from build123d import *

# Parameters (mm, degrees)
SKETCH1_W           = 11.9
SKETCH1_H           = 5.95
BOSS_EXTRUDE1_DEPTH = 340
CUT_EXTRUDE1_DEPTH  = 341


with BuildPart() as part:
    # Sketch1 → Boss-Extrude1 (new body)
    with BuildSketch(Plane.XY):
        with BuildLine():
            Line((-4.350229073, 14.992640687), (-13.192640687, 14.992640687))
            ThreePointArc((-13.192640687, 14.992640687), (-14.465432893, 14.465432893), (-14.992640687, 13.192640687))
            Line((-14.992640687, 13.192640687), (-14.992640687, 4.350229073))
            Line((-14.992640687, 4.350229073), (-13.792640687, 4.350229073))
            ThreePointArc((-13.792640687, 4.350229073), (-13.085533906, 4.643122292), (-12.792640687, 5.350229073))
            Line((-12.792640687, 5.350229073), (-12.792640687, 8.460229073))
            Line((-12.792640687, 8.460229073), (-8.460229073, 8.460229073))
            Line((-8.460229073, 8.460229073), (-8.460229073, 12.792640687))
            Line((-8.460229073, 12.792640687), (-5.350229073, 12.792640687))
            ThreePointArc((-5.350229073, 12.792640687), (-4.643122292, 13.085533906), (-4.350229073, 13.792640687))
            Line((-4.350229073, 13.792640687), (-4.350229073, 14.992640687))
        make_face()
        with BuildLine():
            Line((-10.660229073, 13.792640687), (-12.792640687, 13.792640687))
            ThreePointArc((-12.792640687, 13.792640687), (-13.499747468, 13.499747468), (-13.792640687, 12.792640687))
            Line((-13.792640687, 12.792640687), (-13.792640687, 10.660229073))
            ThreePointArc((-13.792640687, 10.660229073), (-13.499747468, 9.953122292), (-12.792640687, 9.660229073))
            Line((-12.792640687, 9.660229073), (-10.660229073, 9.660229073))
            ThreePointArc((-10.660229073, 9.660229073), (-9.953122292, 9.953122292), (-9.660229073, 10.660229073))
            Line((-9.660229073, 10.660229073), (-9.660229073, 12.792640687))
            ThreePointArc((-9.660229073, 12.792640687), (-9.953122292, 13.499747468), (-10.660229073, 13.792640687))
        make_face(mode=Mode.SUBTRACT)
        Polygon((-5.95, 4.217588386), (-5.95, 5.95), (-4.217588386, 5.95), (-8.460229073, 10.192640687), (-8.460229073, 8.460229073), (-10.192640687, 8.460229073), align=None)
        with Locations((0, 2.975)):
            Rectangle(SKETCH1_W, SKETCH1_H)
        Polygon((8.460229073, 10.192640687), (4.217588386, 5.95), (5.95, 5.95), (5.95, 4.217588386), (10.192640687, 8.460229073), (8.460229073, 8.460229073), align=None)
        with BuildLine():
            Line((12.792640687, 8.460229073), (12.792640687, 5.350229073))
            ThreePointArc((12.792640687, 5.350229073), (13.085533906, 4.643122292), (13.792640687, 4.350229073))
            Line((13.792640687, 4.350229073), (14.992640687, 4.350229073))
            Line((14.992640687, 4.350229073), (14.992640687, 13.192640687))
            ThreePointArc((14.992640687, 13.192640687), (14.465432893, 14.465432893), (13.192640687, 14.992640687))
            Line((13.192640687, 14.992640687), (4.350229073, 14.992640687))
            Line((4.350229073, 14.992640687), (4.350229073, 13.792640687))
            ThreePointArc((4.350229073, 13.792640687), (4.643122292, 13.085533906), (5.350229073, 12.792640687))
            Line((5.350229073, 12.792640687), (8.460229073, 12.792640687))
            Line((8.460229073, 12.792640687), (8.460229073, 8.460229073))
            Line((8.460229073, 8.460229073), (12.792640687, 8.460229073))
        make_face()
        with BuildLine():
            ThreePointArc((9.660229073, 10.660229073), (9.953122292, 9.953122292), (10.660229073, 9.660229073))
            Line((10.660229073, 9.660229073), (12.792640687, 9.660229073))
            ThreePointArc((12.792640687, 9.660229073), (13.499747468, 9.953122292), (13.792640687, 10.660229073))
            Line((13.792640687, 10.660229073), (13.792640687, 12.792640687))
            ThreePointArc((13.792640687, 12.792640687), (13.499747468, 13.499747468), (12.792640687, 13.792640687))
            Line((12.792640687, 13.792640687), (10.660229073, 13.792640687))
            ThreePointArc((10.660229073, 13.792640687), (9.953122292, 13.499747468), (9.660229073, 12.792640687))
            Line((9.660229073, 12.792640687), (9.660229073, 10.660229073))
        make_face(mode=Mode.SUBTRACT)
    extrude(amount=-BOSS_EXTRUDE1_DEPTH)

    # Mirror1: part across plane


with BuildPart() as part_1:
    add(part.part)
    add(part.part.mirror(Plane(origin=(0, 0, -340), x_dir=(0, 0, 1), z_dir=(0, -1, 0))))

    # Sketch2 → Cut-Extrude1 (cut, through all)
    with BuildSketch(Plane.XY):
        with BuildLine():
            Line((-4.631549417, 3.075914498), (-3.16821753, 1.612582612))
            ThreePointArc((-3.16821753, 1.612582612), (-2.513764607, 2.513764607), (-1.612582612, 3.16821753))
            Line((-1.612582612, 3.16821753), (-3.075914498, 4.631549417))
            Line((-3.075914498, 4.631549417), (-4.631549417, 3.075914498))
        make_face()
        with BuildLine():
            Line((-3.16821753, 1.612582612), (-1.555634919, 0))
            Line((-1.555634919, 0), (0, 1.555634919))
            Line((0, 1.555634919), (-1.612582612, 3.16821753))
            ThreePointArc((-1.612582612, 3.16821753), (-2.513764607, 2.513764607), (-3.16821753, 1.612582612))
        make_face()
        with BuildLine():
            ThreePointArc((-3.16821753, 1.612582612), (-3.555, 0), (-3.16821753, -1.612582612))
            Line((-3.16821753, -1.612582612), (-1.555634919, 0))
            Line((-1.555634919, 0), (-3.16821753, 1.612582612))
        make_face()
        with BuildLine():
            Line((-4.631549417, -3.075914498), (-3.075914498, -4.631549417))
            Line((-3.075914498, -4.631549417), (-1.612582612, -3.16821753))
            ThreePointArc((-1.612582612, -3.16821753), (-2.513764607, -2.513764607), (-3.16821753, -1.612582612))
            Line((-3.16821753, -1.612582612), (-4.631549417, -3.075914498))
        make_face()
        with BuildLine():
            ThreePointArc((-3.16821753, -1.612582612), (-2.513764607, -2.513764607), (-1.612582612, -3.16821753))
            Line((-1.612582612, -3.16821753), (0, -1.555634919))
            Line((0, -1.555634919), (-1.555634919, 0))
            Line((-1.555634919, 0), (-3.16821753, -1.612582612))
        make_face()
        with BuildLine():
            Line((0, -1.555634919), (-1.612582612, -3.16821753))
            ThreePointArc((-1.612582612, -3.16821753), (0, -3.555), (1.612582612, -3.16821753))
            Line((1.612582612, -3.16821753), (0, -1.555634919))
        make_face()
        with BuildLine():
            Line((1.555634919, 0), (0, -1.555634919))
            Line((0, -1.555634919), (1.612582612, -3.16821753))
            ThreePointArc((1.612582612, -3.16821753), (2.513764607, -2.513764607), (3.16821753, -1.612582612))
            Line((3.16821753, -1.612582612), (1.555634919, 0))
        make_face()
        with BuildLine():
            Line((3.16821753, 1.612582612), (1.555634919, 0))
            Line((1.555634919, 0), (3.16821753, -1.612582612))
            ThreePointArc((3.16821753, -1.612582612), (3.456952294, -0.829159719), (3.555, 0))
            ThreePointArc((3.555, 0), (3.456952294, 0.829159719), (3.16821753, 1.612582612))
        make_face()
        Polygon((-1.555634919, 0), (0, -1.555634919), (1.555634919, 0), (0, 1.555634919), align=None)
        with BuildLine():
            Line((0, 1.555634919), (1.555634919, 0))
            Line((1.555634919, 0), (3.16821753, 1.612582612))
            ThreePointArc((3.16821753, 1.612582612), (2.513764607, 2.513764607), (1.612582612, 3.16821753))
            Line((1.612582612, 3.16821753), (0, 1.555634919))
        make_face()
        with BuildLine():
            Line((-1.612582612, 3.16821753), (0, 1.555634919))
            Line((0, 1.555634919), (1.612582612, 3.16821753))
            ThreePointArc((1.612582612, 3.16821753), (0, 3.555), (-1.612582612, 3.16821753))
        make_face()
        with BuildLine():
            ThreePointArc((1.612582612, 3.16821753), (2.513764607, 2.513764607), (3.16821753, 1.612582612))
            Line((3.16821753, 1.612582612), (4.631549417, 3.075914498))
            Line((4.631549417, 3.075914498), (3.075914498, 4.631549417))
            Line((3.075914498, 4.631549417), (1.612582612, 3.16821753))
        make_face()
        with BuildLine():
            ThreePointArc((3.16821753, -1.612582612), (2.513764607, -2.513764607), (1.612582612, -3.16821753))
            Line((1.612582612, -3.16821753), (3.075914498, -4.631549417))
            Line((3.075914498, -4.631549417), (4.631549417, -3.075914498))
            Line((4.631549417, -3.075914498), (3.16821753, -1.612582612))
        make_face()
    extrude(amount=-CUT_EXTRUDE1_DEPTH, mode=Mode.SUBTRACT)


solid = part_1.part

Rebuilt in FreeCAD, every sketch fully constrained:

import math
import FreeCAD as App
import Part
import Sketcher
from FreeCAD import Vector

doc = App.newDocument("Part")
body = doc.addObject("PartDesign::Body", "Body")

# Sketch on XY plane
sketch1 = doc.addObject("Sketcher::SketchObject", "Sketch")
body.addObject(sketch1)
sketch1.AttachmentSupport = (doc.XY_Plane, [""])
sketch1.MapMode = "FlatFace"
sketch1.addGeometry([
    Part.LineSegment(Vector(-4.350229, 14.992641, 0), Vector(-13.192641, 14.992641, 0)),  # 0
    Part.ArcOfCircle(Part.Circle(Vector(-13.192641, 13.192641, 0), Vector(0, 0, 1), 1.8), math.radians(90), math.radians(180)),  # 1
    Part.LineSegment(Vector(-14.992641, 13.192641, 0), Vector(-14.992641, 4.350229, 0)),  # 2
    Part.LineSegment(Vector(-14.992641, 4.350229, 0), Vector(-13.792641, 4.350229, 0)),  # 3
    Part.ArcOfCircle(Part.Circle(Vector(-13.792641, 5.350229, 0), Vector(0, 0, 1), 1), math.radians(-90), math.radians(0)),  # 4
    Part.LineSegment(Vector(-12.792641, 5.350229, 0), Vector(-12.792641, 8.460229, 0)),  # 5
    Part.LineSegment(Vector(-12.792641, 8.460229, 0), Vector(-10.192641, 8.460229, 0)),  # 6
    Part.LineSegment(Vector(-10.192641, 8.460229, 0), Vector(-5.95, 4.217588, 0)),  # 7
    Part.LineSegment(Vector(-5.95, 4.217588, 0), Vector(-5.95, 0, 0)),  # 8
    Part.LineSegment(Vector(-5.95, 0, 0), Vector(5.95, 0, 0)),  # 9
    Part.LineSegment(Vector(5.95, 0, 0), Vector(5.95, 4.217588, 0)),  # 10
    Part.LineSegment(Vector(5.95, 4.217588, 0), Vector(10.192641, 8.460229, 0)),  # 11
    Part.LineSegment(Vector(10.192641, 8.460229, 0), Vector(12.792641, 8.460229, 0)),  # 12
    Part.LineSegment(Vector(12.792641, 8.460229, 0), Vector(12.792641, 5.350229, 0)),  # 13
    Part.ArcOfCircle(Part.Circle(Vector(13.792641, 5.350229, 0), Vector(0, 0, 1), 1), math.radians(-180), math.radians(-90)),  # 14
    Part.LineSegment(Vector(13.792641, 4.350229, 0), Vector(14.992641, 4.350229, 0)),  # 15
    Part.LineSegment(Vector(14.992641, 4.350229, 0), Vector(14.992641, 13.192641, 0)),  # 16
    Part.ArcOfCircle(Part.Circle(Vector(13.192641, 13.192641, 0), Vector(0, 0, 1), 1.8), math.radians(0), math.radians(90)),  # 17
    Part.LineSegment(Vector(13.192641, 14.992641, 0), Vector(4.350229, 14.992641, 0)),  # 18
    Part.LineSegment(Vector(4.350229, 14.992641, 0), Vector(4.350229, 13.792641, 0)),  # 19
    Part.ArcOfCircle(Part.Circle(Vector(5.350229, 13.792641, 0), Vector(0, 0, 1), 1), math.radians(-180), math.radians(-90)),  # 20
    Part.LineSegment(Vector(5.350229, 12.792641, 0), Vector(8.460229, 12.792641, 0)),  # 21
    Part.LineSegment(Vector(8.460229, 12.792641, 0), Vector(8.460229, 10.192641, 0)),  # 22
    Part.LineSegment(Vector(8.460229, 10.192641, 0), Vector(4.217588, 5.95, 0)),  # 23
    Part.LineSegment(Vector(4.217588, 5.95, 0), Vector(-4.217588, 5.95, 0)),  # 24
    Part.LineSegment(Vector(-4.217588, 5.95, 0), Vector(-8.460229, 10.192641, 0)),  # 25
    Part.LineSegment(Vector(-8.460229, 10.192641, 0), Vector(-8.460229, 12.792641, 0)),  # 26
    Part.LineSegment(Vector(-8.460229, 12.792641, 0), Vector(-5.350229, 12.792641, 0)),  # 27
    Part.ArcOfCircle(Part.Circle(Vector(-5.350229, 13.792641, 0), Vector(0, 0, 1), 1), math.radians(-90), math.radians(0)),  # 28
    Part.LineSegment(Vector(-4.350229, 13.792641, 0), Vector(-4.350229, 14.992641, 0)),  # 29
    Part.LineSegment(Vector(-12.792641, 13.792641, 0), Vector(-10.660229, 13.792641, 0)),  # 30
    Part.ArcOfCircle(Part.Circle(Vector(-10.660229, 12.792641, 0), Vector(0, 0, 1), 1), math.radians(0), math.radians(90)),  # 31
    Part.LineSegment(Vector(-9.660229, 12.792641, 0), Vector(-9.660229, 10.660229, 0)),  # 32
    Part.ArcOfCircle(Part.Circle(Vector(-10.660229, 10.660229, 0), Vector(0, 0, 1), 1), math.radians(-90), math.radians(0)),  # 33
    Part.LineSegment(Vector(-10.660229, 9.660229, 0), Vector(-12.792641, 9.660229, 0)),  # 34
    Part.ArcOfCircle(Part.Circle(Vector(-12.792641, 10.660229, 0), Vector(0, 0, 1), 1), math.radians(-180), math.radians(-90)),  # 35
    Part.LineSegment(Vector(-13.792641, 10.660229, 0), Vector(-13.792641, 12.792641, 0)),  # 36
    Part.ArcOfCircle(Part.Circle(Vector(-12.792641, 12.792641, 0), Vector(0, 0, 1), 1), math.radians(90), math.radians(180)),  # 37
    Part.ArcOfCircle(Part.Circle(Vector(10.660229, 10.660229, 0), Vector(0, 0, 1), 1), math.radians(-180), math.radians(-90)),  # 38
    Part.LineSegment(Vector(9.660229, 10.660229, 0), Vector(9.660229, 12.792641, 0)),  # 39
    Part.ArcOfCircle(Part.Circle(Vector(10.660229, 12.792641, 0), Vector(0, 0, 1), 1), math.radians(90), math.radians(180)),  # 40
    Part.LineSegment(Vector(10.660229, 13.792641, 0), Vector(12.792641, 13.792641, 0)),  # 41
    Part.ArcOfCircle(Part.Circle(Vector(12.792641, 12.792641, 0), Vector(0, 0, 1), 1), math.radians(0), math.radians(90)),  # 42
    Part.LineSegment(Vector(13.792641, 12.792641, 0), Vector(13.792641, 10.660229, 0)),  # 43
    Part.ArcOfCircle(Part.Circle(Vector(12.792641, 10.660229, 0), Vector(0, 0, 1), 1), math.radians(-90), math.radians(0)),  # 44
    Part.LineSegment(Vector(12.792641, 9.660229, 0), Vector(10.660229, 9.660229, 0)),  # 45
], False)
sketch1.addConstraint([
    Sketcher.Constraint("Tangent", 0, 2, 1, 1),
    Sketcher.Constraint("Tangent", 1, 2, 2, 1),
    Sketcher.Constraint("Coincident", 2, 2, 3, 1),
    Sketcher.Constraint("Tangent", 3, 2, 4, 1),
    Sketcher.Constraint("Tangent", 4, 2, 5, 1),
    Sketcher.Constraint("Coincident", 5, 2, 6, 1),
    Sketcher.Constraint("Coincident", 6, 2, 7, 1),
    Sketcher.Constraint("Coincident", 7, 2, 8, 1),
    Sketcher.Constraint("Coincident", 8, 2, 9, 1),
    Sketcher.Constraint("Coincident", 9, 2, 10, 1),
    Sketcher.Constraint("Coincident", 10, 2, 11, 1),
    Sketcher.Constraint("Coincident", 11, 2, 12, 1),
    Sketcher.Constraint("Coincident", 12, 2, 13, 1),
    Sketcher.Constraint("Tangent", 13, 2, 14, 1),
    Sketcher.Constraint("Tangent", 14, 2, 15, 1),
    Sketcher.Constraint("Coincident", 15, 2, 16, 1),
    Sketcher.Constraint("Tangent", 16, 2, 17, 1),
    Sketcher.Constraint("Tangent", 17, 2, 18, 1),
    Sketcher.Constraint("Coincident", 18, 2, 19, 1),
    Sketcher.Constraint("Tangent", 19, 2, 20, 1),
    Sketcher.Constraint("Tangent", 20, 2, 21, 1),
    Sketcher.Constraint("Coincident", 21, 2, 22, 1),
    Sketcher.Constraint("Coincident", 22, 2, 23, 1),
    Sketcher.Constraint("Coincident", 23, 2, 24, 1),
    Sketcher.Constraint("Coincident", 24, 2, 25, 1),
    Sketcher.Constraint("Coincident", 25, 2, 26, 1),
    Sketcher.Constraint("Coincident", 26, 2, 27, 1),
    Sketcher.Constraint("Tangent", 27, 2, 28, 1),
    Sketcher.Constraint("Tangent", 28, 2, 29, 1),
    Sketcher.Constraint("Coincident", 29, 2, 0, 1),
    Sketcher.Constraint("Tangent", 30, 2, 31, 2),
    Sketcher.Constraint("Tangent", 31, 1, 32, 1),
    Sketcher.Constraint("Tangent", 32, 2, 33, 2),
    Sketcher.Constraint("Tangent", 33, 1, 34, 1),
    Sketcher.Constraint("Tangent", 34, 2, 35, 2),
    Sketcher.Constraint("Tangent", 35, 1, 36, 1),
    Sketcher.Constraint("Tangent", 36, 2, 37, 2),
    Sketcher.Constraint("Tangent", 37, 1, 30, 1),
    Sketcher.Constraint("Tangent", 38, 1, 39, 1),
    Sketcher.Constraint("Tangent", 39, 2, 40, 2),
    Sketcher.Constraint("Tangent", 40, 1, 41, 1),
    Sketcher.Constraint("Tangent", 41, 2, 42, 2),
    Sketcher.Constraint("Tangent", 42, 1, 43, 1),
    Sketcher.Constraint("Tangent", 43, 2, 44, 2),
    Sketcher.Constraint("Tangent", 44, 1, 45, 1),
    Sketcher.Constraint("Tangent", 45, 2, 38, 2),
    Sketcher.Constraint("Horizontal", 0),
    Sketcher.Constraint("Vertical", 2),
    Sketcher.Constraint("Horizontal", 3),
    Sketcher.Constraint("Vertical", 5),
    Sketcher.Constraint("Horizontal", 6),
    Sketcher.Constraint("Vertical", 8),
    Sketcher.Constraint("Horizontal", 9),
    Sketcher.Constraint("Vertical", 10),
    Sketcher.Constraint("Horizontal", 12),
    Sketcher.Constraint("Vertical", 13),
    Sketcher.Constraint("Horizontal", 15),
    Sketcher.Constraint("Vertical", 16),
    Sketcher.Constraint("Horizontal", 18),
    Sketcher.Constraint("Vertical", 19),
    Sketcher.Constraint("Horizontal", 21),
    Sketcher.Constraint("Vertical", 22),
    Sketcher.Constraint("Horizontal", 24),
    Sketcher.Constraint("Vertical", 26),
    Sketcher.Constraint("Horizontal", 27),
    Sketcher.Constraint("Vertical", 29),
    Sketcher.Constraint("Horizontal", 30),
    Sketcher.Constraint("Vertical", 32),
    Sketcher.Constraint("Horizontal", 34),
    Sketcher.Constraint("Vertical", 36),
    Sketcher.Constraint("Vertical", 39),
    Sketcher.Constraint("Horizontal", 41),
    Sketcher.Constraint("Vertical", 43),
    Sketcher.Constraint("Horizontal", 45),
    Sketcher.Constraint("Equal", 4, 14),
    Sketcher.Constraint("Equal", 1, 17),
    Sketcher.Constraint("Equal", 14, 20),
    Sketcher.Constraint("Equal", 20, 28),
    Sketcher.Constraint("Equal", 28, 31),
    Sketcher.Constraint("Equal", 31, 33),
    Sketcher.Constraint("Equal", 33, 35),
    Sketcher.Constraint("Equal", 35, 37),
    Sketcher.Constraint("Equal", 37, 38),
    Sketcher.Constraint("Equal", 38, 40),
    Sketcher.Constraint("Equal", 40, 42),
    Sketcher.Constraint("Equal", 42, 44),
    Sketcher.Constraint("Symmetric", 8, 2, 9, 2, -1, 1),
    Sketcher.Constraint("Symmetric", 4, 3, 14, 3, -2),
    Sketcher.Constraint("Symmetric", 1, 3, 17, 3, -2),
    Sketcher.Constraint("Symmetric", 20, 3, 28, 3, -2),
    Sketcher.Constraint("Symmetric", 33, 3, 38, 3, -2),
    Sketcher.Constraint("Symmetric", 37, 3, 42, 3, -2),
    Sketcher.Constraint("Symmetric", 6, 2, 11, 2, -2),
    Sketcher.Constraint("Symmetric", 22, 2, 25, 2, -2),
    Sketcher.Constraint("Perpendicular", 7, 11),
    Sketcher.Constraint("Parallel", 11, 23),
    Sketcher.Constraint("Perpendicular", 23, 25),
    Sketcher.Constraint("Horizontal", 7, 2, 10, 2),
    Sketcher.Constraint("Horizontal", 42, 3, 20, 2),
    Sketcher.Constraint("Vertical", 37, 3, 4, 2),
    Sketcher.Constraint("Equal", 18, 2),
    Sketcher.Constraint("Equal", 27, 5),
    Sketcher.Constraint("Equal", 15, 19),
    Sketcher.Constraint("Equal", 12, 22),
    Sketcher.Constraint("Equal", 45, 32),
    Sketcher.Constraint("Equal", 11, 23),
    Sketcher.Constraint("Radius", 4, 1.0),
    Sketcher.Constraint("Radius", 1, 1.8),
    Sketcher.Constraint("Distance", 7, 6.0),
    Sketcher.Constraint("DistanceX", 3, 1, 3, 2, 1.2),
    Sketcher.Constraint("DistanceX", 6, 1, 6, 2, 2.6),
    Sketcher.Constraint("DistanceX", 9, 1, 9, 2, 11.9),
    Sketcher.Constraint("DistanceX", 21, 1, 21, 2, 3.11),
    Sketcher.Constraint("DistanceY", 5, 2, 35, 3, 2.2),
    Sketcher.Constraint("DistanceY", -1, 1, 23, 2, 5.95),
    Sketcher.Constraint("DistanceX", 0, 2, 0, 1, 8.842412),
])
pad1 = doc.addObject("PartDesign::Pad", "Pad")
body.addObject(pad1)
pad1.Profile = sketch1
pad1.Length = 340
pad1.Reversed = True
body2 = doc.addObject("PartDesign::Body", "Body001")
doc.recompute()

body2.BaseFeature = body
doc.recompute()

mirroring = doc.addObject("Part::Mirroring", "Mirroring")
mirroring.Source = body
mirroring.Base = Vector(0, 0, -340)
mirroring.Normal = Vector(0, -1, 0)
body3 = doc.addObject("PartDesign::Body", "Body002")
body3.BaseFeature = mirroring
boolean = doc.addObject("PartDesign::Boolean", "Boolean")
body2.addObject(boolean)
boolean.Type = "Fuse"
boolean.addObjects([body3])
doc.recompute()

# Sketch on XY plane
sketch2 = doc.addObject("Sketcher::SketchObject", "Sketch001")
body2.addObject(sketch2)
sketch2.AttachmentSupport = (doc.getObject("XY_Plane001"), [""])
sketch2.MapMode = "FlatFace"
sketch2.addGeometry([
    Part.LineSegment(Vector(-4.631549, 3.075914, 0), Vector(-3.168218, 1.612583, 0)),  # 0
    Part.ArcOfCircle(Part.Circle(Vector(0, 0, 0), Vector(0, 0, 1), 3.555), math.radians(153.024482), math.radians(206.975518)),  # 1
    Part.LineSegment(Vector(-3.168218, -1.612583, 0), Vector(-4.631549, -3.075914, 0)),  # 2
    Part.LineSegment(Vector(-4.631549, -3.075914, 0), Vector(-3.075914, -4.631549, 0)),  # 3
    Part.LineSegment(Vector(-3.075914, -4.631549, 0), Vector(-1.612583, -3.168218, 0)),  # 4
    Part.ArcOfCircle(Part.Circle(Vector(0, 0, 0), Vector(0, 0, 1), 3.555), math.radians(-116.975518), math.radians(-63.024482)),  # 5
    Part.LineSegment(Vector(1.612583, -3.168218, 0), Vector(3.075914, -4.631549, 0)),  # 6
    Part.LineSegment(Vector(3.075914, -4.631549, 0), Vector(4.631549, -3.075914, 0)),  # 7
    Part.LineSegment(Vector(4.631549, -3.075914, 0), Vector(3.168218, -1.612583, 0)),  # 8
    Part.ArcOfCircle(Part.Circle(Vector(0, 0, 0), Vector(0, 0, 1), 3.555), math.radians(-26.975518), math.radians(0)),  # 9
    Part.ArcOfCircle(Part.Circle(Vector(0, 0, 0), Vector(0, 0, 1), 3.555), math.radians(0), math.radians(26.975518)),  # 10
    Part.LineSegment(Vector(3.168218, 1.612583, 0), Vector(4.631549, 3.075914, 0)),  # 11
    Part.LineSegment(Vector(4.631549, 3.075914, 0), Vector(3.075914, 4.631549, 0)),  # 12
    Part.LineSegment(Vector(3.075914, 4.631549, 0), Vector(1.612583, 3.168218, 0)),  # 13
    Part.ArcOfCircle(Part.Circle(Vector(0, 0, 0), Vector(0, 0, 1), 3.555), math.radians(63.024482), math.radians(116.975518)),  # 14
    Part.LineSegment(Vector(-1.612583, 3.168218, 0), Vector(-3.075914, 4.631549, 0)),  # 15
    Part.LineSegment(Vector(-3.075914, 4.631549, 0), Vector(-4.631549, 3.075914, 0)),  # 16
], False)
sketch2.addConstraint([
    Sketcher.Constraint("Coincident", 0, 2, 1, 1),
    Sketcher.Constraint("Coincident", 1, 2, 2, 1),
    Sketcher.Constraint("Coincident", 2, 2, 3, 1),
    Sketcher.Constraint("Coincident", 3, 2, 4, 1),
    Sketcher.Constraint("Coincident", 4, 2, 5, 1),
    Sketcher.Constraint("Coincident", 5, 2, 6, 1),
    Sketcher.Constraint("Coincident", 6, 2, 7, 1),
    Sketcher.Constraint("Coincident", 7, 2, 8, 1),
    Sketcher.Constraint("Coincident", 8, 2, 9, 1),
    Sketcher.Constraint("Tangent", 9, 2, 10, 1),
    Sketcher.Constraint("Coincident", 10, 2, 11, 1),
    Sketcher.Constraint("Coincident", 11, 2, 12, 1),
    Sketcher.Constraint("Coincident", 12, 2, 13, 1),
    Sketcher.Constraint("Coincident", 13, 2, 14, 1),
    Sketcher.Constraint("Coincident", 14, 2, 15, 1),
    Sketcher.Constraint("Coincident", 15, 2, 16, 1),
    Sketcher.Constraint("Coincident", 16, 2, 0, 1),
    Sketcher.Constraint("Coincident", 1, 3, -1, 1),
    Sketcher.Constraint("Coincident", 5, 3, -1, 1),
    Sketcher.Constraint("Coincident", 9, 3, -1, 1),
    Sketcher.Constraint("Coincident", 14, 3, -1, 1),
    Sketcher.Constraint("Equal", 1, 5),
    Sketcher.Constraint("Equal", 5, 9),
    Sketcher.Constraint("Equal", 9, 10),
    Sketcher.Constraint("Equal", 10, 14),
    Sketcher.Constraint("Symmetric", 2, 2, 11, 2, -1, 1),
    Sketcher.Constraint("Symmetric", 3, 2, 12, 2, -1, 1),
    Sketcher.Constraint("Symmetric", 6, 2, 15, 2, -1, 1),
    Sketcher.Constraint("Symmetric", 7, 2, 16, 2, -1, 1),
    Sketcher.Constraint("Symmetric", 3, 2, 6, 2, -2),
    Sketcher.Constraint("Symmetric", 2, 2, 7, 2, -2),
    Sketcher.Constraint("PointOnObject", 9, 2, -1),
    Sketcher.Constraint("Perpendicular", 0, 2),
    Sketcher.Constraint("Perpendicular", 2, 3),
    Sketcher.Constraint("Perpendicular", 3, 4),
    Sketcher.Constraint("Perpendicular", 4, 6),
    Sketcher.Constraint("Perpendicular", 6, 7),
    Sketcher.Constraint("Perpendicular", 7, 8),
    Sketcher.Constraint("Perpendicular", 8, 11),
    Sketcher.Constraint("Perpendicular", 12, 13),
    Sketcher.Constraint("Perpendicular", 13, 15),
    Sketcher.Constraint("Equal", 2, 4),
    Sketcher.Constraint("Radius", 1, 3.555),
    Sketcher.Constraint("Distance", 3, 2.2),
    Sketcher.Constraint("DistanceX", 2, 2, -1, 1, 4.631549),
])
pocket1 = doc.addObject("PartDesign::Pocket", "Pocket")
body2.addObject(pocket1)
pocket1.Profile = sketch2
pocket1.Type = "ThroughAll"
mirroring.Visibility = False

doc.recompute()
